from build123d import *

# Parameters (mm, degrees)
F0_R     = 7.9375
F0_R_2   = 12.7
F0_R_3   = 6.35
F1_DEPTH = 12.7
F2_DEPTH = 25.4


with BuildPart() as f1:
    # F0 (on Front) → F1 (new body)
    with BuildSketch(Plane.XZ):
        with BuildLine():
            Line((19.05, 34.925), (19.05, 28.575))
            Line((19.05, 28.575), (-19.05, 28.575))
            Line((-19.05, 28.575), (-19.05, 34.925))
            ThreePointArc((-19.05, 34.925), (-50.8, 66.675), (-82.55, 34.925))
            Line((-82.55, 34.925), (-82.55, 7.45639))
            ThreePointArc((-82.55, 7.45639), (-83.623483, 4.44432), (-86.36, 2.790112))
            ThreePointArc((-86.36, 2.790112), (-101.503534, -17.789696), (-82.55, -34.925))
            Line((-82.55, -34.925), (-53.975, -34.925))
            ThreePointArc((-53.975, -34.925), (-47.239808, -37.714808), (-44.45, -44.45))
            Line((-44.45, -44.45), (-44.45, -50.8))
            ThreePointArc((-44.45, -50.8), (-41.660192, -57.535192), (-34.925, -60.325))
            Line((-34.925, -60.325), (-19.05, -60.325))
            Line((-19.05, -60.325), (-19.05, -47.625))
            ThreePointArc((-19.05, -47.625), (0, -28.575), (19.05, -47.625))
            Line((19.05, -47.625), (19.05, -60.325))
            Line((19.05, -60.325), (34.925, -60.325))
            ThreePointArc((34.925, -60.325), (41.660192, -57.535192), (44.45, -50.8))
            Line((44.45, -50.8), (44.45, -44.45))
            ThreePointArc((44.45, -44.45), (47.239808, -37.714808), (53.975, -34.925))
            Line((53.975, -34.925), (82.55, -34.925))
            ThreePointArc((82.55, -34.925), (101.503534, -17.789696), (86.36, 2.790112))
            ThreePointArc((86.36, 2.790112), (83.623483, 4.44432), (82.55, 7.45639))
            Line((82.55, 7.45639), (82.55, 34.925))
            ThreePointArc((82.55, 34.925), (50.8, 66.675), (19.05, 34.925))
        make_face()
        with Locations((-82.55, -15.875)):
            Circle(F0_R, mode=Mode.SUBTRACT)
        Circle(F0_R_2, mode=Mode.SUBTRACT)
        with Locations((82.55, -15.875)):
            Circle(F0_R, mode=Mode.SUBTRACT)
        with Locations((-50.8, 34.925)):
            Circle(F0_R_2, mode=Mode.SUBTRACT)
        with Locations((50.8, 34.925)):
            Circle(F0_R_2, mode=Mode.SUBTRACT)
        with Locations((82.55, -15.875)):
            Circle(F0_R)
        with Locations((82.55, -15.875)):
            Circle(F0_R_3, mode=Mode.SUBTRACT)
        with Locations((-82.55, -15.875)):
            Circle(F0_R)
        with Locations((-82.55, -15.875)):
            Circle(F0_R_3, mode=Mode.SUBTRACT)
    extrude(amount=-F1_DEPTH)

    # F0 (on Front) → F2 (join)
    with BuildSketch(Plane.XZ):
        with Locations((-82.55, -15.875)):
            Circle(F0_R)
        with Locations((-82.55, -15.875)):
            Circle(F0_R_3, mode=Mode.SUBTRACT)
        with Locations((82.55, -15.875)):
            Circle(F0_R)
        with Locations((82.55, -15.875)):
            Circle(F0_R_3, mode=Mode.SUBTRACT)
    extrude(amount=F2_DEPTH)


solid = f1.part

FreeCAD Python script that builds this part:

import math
import FreeCAD as App
import Part
import Sketcher

V = App.Vector
Q = App.Units.Quantity

doc = App.newDocument("Part")
body = doc.addObject("PartDesign::Body", "Body")

sketch1 = body.newObject("Sketcher::SketchObject", "Sketch")
sketch1.AttachmentSupport = (doc.getObject("XZ_Plane"), [""])
sketch1.MapMode = "FlatFace"
sketch1.addGeometry([
    Part.LineSegment(V(19.05, 34.925, 0), V(19.05, 28.575, 0)),
    Part.LineSegment(V(19.05, 28.575, 0), V(-19.05, 28.575, 0)),
    Part.LineSegment(V(-19.05, 28.575, 0), V(-19.05, 34.925, 0)),
    Part.ArcOfCircle(Part.Circle(V(-50.8, 34.925, 0), V(0, 0, 1), 31.75), math.radians(0), math.radians(180)),
    Part.LineSegment(V(-82.55, 34.925, 0), V(-82.55, 7.45639, 0)),
    Part.ArcOfCircle(Part.Circle(V(-87.312498, 7.456388, 0), V(0, 0, 1), 4.762498), math.radians(-78.463061), math.radians(0.00002)),
    Part.ArcOfCircle(Part.Circle(V(-82.55, -15.875, 0), V(0, 0, 1), 19.05), math.radians(101.536958), math.radians(270.000001)),
    Part.LineSegment(V(-82.55, -34.925, 0), V(-53.975, -34.925, 0)),
    Part.ArcOfCircle(Part.Circle(V(-53.975, -44.45, 0), V(0, 0, 1), 9.525), math.radians(0.000002), math.radians(89.999998)),
    Part.LineSegment(V(-44.45, -44.45, 0), V(-44.45, -50.8, 0)),
    Part.ArcOfCircle(Part.Circle(V(-34.925, -50.8, 0), V(0, 0, 1), 9.525), math.radians(-179.999998), math.radians(-90.000002)),
    Part.LineSegment(V(-34.925, -60.325, 0), V(-19.05, -60.325, 0)),
    Part.LineSegment(V(-19.05, -60.325, 0), V(-19.05, -47.625, 0)),
    Part.ArcOfCircle(Part.Circle(V(0, -47.625, 0), V(0, 0, 1), 19.05), math.radians(0), math.radians(180)),
    Part.LineSegment(V(19.05, -47.625, 0), V(19.05, -60.325, 0)),
    Part.LineSegment(V(19.05, -60.325, 0), V(34.925, -60.325, 0)),
    Part.ArcOfCircle(Part.Circle(V(34.925, -50.8, 0), V(0, 0, 1), 9.525), math.radians(-89.999998), math.radians(-0.000002)),
    Part.LineSegment(V(44.45, -50.8, 0), V(44.45, -44.45, 0)),
    Part.ArcOfCircle(Part.Circle(V(53.975, -44.45, 0), V(0, 0, 1), 9.525), math.radians(90.000002), math.radians(179.999998)),
    Part.LineSegment(V(53.975, -34.925, 0), V(82.55, -34.925, 0)),
    Part.ArcOfCircle(Part.Circle(V(82.55, -15.875, 0), V(0, 0, 1), 19.05), math.radians(-90.000001), math.radians(78.463042)),
    Part.ArcOfCircle(Part.Circle(V(87.312498, 7.456388, 0), V(0, 0, 1), 4.762498), math.radians(179.99998), math.radians(258.463061)),
    Part.LineSegment(V(82.55, 7.45639, 0), V(82.55, 34.925, 0)),
    Part.ArcOfCircle(Part.Circle(V(50.8, 34.925, 0), V(0, 0, 1), 31.75), math.radians(0), math.radians(180)),
    Part.Circle(V(-82.55, -15.875, 0), V(0, 0, 1), 6.35),
    Part.Circle(V(82.55, -15.875, 0), V(0, 0, 1), 6.35),
    Part.Circle(V(0, 0, 0), V(0, 0, 1), 12.7),
    Part.Circle(V(-50.8, 34.925, 0), V(0, 0, 1), 12.7),
    Part.Circle(V(50.8, 34.925, 0), V(0, 0, 1), 12.7),
], False)
sketch1.addConstraint([
    Sketcher.Constraint("Coincident", 0, 2, 1, 1),
    Sketcher.Constraint("Coincident", 1, 2, 2, 1),
    Sketcher.Constraint("Tangent", 2, 2, 3, 1),
    Sketcher.Constraint("Tangent", 3, 2, 4, 1),
    Sketcher.Constraint("Tangent", 4, 2, 5, 2),
    Sketcher.Constraint("Tangent", 5, 1, 6, 1),
    Sketcher.Constraint("Tangent", 6, 2, 7, 1),
    Sketcher.Constraint("Tangent", 7, 2, 8, 2),
    Sketcher.Constraint("Tangent", 8, 1, 9, 1),
    Sketcher.Constraint("Tangent", 9, 2, 10, 1),
    Sketcher.Constraint("Tangent", 10, 2, 11, 1),
    Sketcher.Constraint("Coincident", 11, 2, 12, 1),
    Sketcher.Constraint("Tangent", 12, 2, 13, 2),
    Sketcher.Constraint("Tangent", 13, 1, 14, 1),
    Sketcher.Constraint("Coincident", 14, 2, 15, 1),
    Sketcher.Constraint("Tangent", 15, 2, 16, 1),
    Sketcher.Constraint("Tangent", 16, 2, 17, 1),
    Sketcher.Constraint("Tangent", 17, 2, 18, 2),
    Sketcher.Constraint("Tangent", 18, 1, 19, 1),
    Sketcher.Constraint("Tangent", 19, 2, 20, 1),
    Sketcher.Constraint("Tangent", 20, 2, 21, 2),
    Sketcher.Constraint("Tangent", 21, 1, 22, 1),
    Sketcher.Constraint("Tangent", 22, 2, 23, 1),
    Sketcher.Constraint("Tangent", 23, 2, 0, 1),
    Sketcher.Constraint("Vertical", 0),
    Sketcher.Constraint("Horizontal", 1),
    Sketcher.Constraint("Vertical", 2),
    Sketcher.Constraint("Vertical", 4),
    Sketcher.Constraint("Horizontal", 7),
    Sketcher.Constraint("Vertical", 9),
    Sketcher.Constraint("Horizontal", 11),
    Sketcher.Constraint("Vertical", 12),
    Sketcher.Constraint("Vertical", 14),
    Sketcher.Constraint("Horizontal", 15),
    Sketcher.Constraint("Vertical", 17),
    Sketcher.Constraint("Horizontal", 19),
    Sketcher.Constraint("Vertical", 22),
    Sketcher.Constraint("Coincident", 26, 3, -1, 1),
    Sketcher.Constraint("Coincident", 24, 3, 6, 3),
    Sketcher.Constraint("Coincident", 25, 3, 20, 3),
    Sketcher.Constraint("Coincident", 27, 3, 3, 3),
    Sketcher.Constraint("Coincident", 28, 3, 23, 3),
    Sketcher.Constraint("Equal", 8, 10),
    Sketcher.Constraint("Equal", 6, 13),
    Sketcher.Constraint("Equal", 10, 16),
    Sketcher.Constraint("Equal", 16, 18),
    Sketcher.Constraint("Equal", 13, 20),
    Sketcher.Constraint("Equal", 5, 21),
    Sketcher.Constraint("Equal", 3, 23),
    Sketcher.Constraint("Equal", 24, 25),
    Sketcher.Constraint("Equal", 26, 27),
    Sketcher.Constraint("Equal", 27, 28),
    Sketcher.Constraint("Symmetric", 3, 2, 19, 2, -1, 1),
    Sketcher.Constraint("Symmetric", 6, 2, 22, 2, -1, 1),
    Sketcher.Constraint("Symmetric", 10, 3, 16, 3, -2),
    Sketcher.Constraint("Symmetric", 6, 3, 20, 3, -2),
    Sketcher.Constraint("PointOnObject", 13, 3, -2),
    Sketcher.Constraint("Vertical", 2, 2, 11, 2),
    Sketcher.Constraint("Equal", 2, 9),
    Sketcher.Constraint("Diameter", 26, Q("1 in")),
    Sketcher.Constraint("Diameter", 24, Q("0.5 in")),
    Sketcher.Constraint("Radius", 3, Q("1.25 in")),
    Sketcher.Constraint("Radius", 6, Q("0.75 in")),
    Sketcher.Constraint("DistanceY", 12, 1, 12, 2, Q("0.5 in")),
    Sketcher.Constraint("DistanceY", 10, 3, -1, 1, Q("2 in")),
    Sketcher.Constraint("Radius", 5, Q("0.1874999 in")),
    Sketcher.Constraint("Radius", 8, Q("0.375 in")),
    Sketcher.Constraint("DistanceY", 6, 3, 3, 3, Q("2 in")),
    Sketcher.Constraint("DistanceX", 9, 2, 11, 2, Q("1 in")),
])
pad1 = body.newObject("PartDesign::Pad", "Pad")
pad1.Profile = sketch1
pad1.Length = Q("0.5 in")
pad1.Reversed = True

sketch2 = body.newObject("Sketcher::SketchObject", "Sketch001")
sketch2.AttachmentSupport = (doc.getObject("XZ_Plane"), [""])
sketch2.MapMode = "FlatFace"
sketch2.addGeometry([
    Part.Circle(V(-82.55, -15.875, 0), V(0, 0, 1), 7.9375),
    Part.Circle(V(-82.55, -15.875, 0), V(0, 0, 1), 6.35),
    Part.Circle(V(82.55, -15.875, 0), V(0, 0, 1), 7.9375),
    Part.Circle(V(82.55, -15.875, 0), V(0, 0, 1), 6.35),
], False)
sketch2.addConstraint([
    Sketcher.Constraint("Coincident", 1, 3, 0, 3),
    Sketcher.Constraint("Coincident", 3, 3, 2, 3),
    Sketcher.Constraint("Equal", 0, 2),
    Sketcher.Constraint("Equal", 1, 3),
    Sketcher.Constraint("Symmetric", 0, 3, 2, 3, -2),
    Sketcher.Constraint("Diameter", 1, Q("0.5 in")),
    Sketcher.Constraint("Diameter", 0, Q("0.625 in")),
    Sketcher.Constraint("DistanceX", 0, 3, 2, 3, Q("6.5 in")),
    Sketcher.Constraint("DistanceY", 0, 3, -1, 1, Q("0.625 in")),
])
pad2 = body.newObject("PartDesign::Pad", "Pad001")
pad2.Profile = sketch2
pad2.Length = Q("1 in")

doc.recompute()
